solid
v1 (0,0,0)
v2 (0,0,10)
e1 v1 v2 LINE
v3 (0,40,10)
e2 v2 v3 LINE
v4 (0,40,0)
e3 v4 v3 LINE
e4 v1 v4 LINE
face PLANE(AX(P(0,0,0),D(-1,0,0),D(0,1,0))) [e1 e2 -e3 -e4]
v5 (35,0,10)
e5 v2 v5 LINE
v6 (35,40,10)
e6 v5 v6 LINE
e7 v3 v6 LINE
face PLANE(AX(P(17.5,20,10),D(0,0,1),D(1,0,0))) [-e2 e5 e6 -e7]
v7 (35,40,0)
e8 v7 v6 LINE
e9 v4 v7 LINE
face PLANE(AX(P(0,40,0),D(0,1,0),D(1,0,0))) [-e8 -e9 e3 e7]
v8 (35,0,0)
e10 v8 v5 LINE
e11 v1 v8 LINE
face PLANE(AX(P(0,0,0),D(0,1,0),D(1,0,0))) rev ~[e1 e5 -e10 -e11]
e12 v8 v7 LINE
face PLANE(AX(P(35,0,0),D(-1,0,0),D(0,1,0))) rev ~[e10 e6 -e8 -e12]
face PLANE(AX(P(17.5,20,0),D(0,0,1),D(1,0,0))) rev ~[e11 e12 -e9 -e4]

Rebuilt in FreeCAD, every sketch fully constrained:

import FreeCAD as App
import Part
import Sketcher
Q = App.Units.Quantity


def add_polygon(sketch, points):
    """Adds a closed chain of lines whose ends are joined by coincident constraints."""
    first, n = sketch.GeometryCount, len(points)
    for a, b in zip(points, points[1:] + points[:1]):
        sketch.addGeometry(Part.LineSegment(App.Vector(*a, 0), App.Vector(*b, 0)), False)
    for i in range(n):
        sketch.addConstraint(Sketcher.Constraint("Coincident", first + i, 2, first + (i + 1) % n, 1))

doc = App.newDocument("Part")
body = doc.addObject("PartDesign::Body", "Body")

# Sketch on XY plane
sketch1 = doc.addObject("Sketcher::SketchObject", "Sketch")
body.addObject(sketch1)
sketch1.AttachmentSupport = (doc.XY_Plane, [""])
sketch1.MapMode = "FlatFace"
add_polygon(sketch1, [(0, 40), (0, 0), (35, 0), (35, 40)])  # lines 0-3
sketch1.addConstraint([
    Sketcher.Constraint("Vertical", 0),
    Sketcher.Constraint("Horizontal", 1),
    Sketcher.Constraint("Vertical", 2),
    Sketcher.Constraint("Horizontal", 3),
    Sketcher.Constraint("Coincident", 0, 2, -1, 1),
    Sketcher.Constraint("DistanceX", 1, 1, 1, 2, Q("35 mm")),
    Sketcher.Constraint("DistanceY", 0, 2, 0, 1, Q("40 mm")),
])
pad1 = doc.addObject("PartDesign::Pad", "Pad")
body.addObject(pad1)
pad1.Profile = sketch1
pad1.Length = 10

doc.recompute()
